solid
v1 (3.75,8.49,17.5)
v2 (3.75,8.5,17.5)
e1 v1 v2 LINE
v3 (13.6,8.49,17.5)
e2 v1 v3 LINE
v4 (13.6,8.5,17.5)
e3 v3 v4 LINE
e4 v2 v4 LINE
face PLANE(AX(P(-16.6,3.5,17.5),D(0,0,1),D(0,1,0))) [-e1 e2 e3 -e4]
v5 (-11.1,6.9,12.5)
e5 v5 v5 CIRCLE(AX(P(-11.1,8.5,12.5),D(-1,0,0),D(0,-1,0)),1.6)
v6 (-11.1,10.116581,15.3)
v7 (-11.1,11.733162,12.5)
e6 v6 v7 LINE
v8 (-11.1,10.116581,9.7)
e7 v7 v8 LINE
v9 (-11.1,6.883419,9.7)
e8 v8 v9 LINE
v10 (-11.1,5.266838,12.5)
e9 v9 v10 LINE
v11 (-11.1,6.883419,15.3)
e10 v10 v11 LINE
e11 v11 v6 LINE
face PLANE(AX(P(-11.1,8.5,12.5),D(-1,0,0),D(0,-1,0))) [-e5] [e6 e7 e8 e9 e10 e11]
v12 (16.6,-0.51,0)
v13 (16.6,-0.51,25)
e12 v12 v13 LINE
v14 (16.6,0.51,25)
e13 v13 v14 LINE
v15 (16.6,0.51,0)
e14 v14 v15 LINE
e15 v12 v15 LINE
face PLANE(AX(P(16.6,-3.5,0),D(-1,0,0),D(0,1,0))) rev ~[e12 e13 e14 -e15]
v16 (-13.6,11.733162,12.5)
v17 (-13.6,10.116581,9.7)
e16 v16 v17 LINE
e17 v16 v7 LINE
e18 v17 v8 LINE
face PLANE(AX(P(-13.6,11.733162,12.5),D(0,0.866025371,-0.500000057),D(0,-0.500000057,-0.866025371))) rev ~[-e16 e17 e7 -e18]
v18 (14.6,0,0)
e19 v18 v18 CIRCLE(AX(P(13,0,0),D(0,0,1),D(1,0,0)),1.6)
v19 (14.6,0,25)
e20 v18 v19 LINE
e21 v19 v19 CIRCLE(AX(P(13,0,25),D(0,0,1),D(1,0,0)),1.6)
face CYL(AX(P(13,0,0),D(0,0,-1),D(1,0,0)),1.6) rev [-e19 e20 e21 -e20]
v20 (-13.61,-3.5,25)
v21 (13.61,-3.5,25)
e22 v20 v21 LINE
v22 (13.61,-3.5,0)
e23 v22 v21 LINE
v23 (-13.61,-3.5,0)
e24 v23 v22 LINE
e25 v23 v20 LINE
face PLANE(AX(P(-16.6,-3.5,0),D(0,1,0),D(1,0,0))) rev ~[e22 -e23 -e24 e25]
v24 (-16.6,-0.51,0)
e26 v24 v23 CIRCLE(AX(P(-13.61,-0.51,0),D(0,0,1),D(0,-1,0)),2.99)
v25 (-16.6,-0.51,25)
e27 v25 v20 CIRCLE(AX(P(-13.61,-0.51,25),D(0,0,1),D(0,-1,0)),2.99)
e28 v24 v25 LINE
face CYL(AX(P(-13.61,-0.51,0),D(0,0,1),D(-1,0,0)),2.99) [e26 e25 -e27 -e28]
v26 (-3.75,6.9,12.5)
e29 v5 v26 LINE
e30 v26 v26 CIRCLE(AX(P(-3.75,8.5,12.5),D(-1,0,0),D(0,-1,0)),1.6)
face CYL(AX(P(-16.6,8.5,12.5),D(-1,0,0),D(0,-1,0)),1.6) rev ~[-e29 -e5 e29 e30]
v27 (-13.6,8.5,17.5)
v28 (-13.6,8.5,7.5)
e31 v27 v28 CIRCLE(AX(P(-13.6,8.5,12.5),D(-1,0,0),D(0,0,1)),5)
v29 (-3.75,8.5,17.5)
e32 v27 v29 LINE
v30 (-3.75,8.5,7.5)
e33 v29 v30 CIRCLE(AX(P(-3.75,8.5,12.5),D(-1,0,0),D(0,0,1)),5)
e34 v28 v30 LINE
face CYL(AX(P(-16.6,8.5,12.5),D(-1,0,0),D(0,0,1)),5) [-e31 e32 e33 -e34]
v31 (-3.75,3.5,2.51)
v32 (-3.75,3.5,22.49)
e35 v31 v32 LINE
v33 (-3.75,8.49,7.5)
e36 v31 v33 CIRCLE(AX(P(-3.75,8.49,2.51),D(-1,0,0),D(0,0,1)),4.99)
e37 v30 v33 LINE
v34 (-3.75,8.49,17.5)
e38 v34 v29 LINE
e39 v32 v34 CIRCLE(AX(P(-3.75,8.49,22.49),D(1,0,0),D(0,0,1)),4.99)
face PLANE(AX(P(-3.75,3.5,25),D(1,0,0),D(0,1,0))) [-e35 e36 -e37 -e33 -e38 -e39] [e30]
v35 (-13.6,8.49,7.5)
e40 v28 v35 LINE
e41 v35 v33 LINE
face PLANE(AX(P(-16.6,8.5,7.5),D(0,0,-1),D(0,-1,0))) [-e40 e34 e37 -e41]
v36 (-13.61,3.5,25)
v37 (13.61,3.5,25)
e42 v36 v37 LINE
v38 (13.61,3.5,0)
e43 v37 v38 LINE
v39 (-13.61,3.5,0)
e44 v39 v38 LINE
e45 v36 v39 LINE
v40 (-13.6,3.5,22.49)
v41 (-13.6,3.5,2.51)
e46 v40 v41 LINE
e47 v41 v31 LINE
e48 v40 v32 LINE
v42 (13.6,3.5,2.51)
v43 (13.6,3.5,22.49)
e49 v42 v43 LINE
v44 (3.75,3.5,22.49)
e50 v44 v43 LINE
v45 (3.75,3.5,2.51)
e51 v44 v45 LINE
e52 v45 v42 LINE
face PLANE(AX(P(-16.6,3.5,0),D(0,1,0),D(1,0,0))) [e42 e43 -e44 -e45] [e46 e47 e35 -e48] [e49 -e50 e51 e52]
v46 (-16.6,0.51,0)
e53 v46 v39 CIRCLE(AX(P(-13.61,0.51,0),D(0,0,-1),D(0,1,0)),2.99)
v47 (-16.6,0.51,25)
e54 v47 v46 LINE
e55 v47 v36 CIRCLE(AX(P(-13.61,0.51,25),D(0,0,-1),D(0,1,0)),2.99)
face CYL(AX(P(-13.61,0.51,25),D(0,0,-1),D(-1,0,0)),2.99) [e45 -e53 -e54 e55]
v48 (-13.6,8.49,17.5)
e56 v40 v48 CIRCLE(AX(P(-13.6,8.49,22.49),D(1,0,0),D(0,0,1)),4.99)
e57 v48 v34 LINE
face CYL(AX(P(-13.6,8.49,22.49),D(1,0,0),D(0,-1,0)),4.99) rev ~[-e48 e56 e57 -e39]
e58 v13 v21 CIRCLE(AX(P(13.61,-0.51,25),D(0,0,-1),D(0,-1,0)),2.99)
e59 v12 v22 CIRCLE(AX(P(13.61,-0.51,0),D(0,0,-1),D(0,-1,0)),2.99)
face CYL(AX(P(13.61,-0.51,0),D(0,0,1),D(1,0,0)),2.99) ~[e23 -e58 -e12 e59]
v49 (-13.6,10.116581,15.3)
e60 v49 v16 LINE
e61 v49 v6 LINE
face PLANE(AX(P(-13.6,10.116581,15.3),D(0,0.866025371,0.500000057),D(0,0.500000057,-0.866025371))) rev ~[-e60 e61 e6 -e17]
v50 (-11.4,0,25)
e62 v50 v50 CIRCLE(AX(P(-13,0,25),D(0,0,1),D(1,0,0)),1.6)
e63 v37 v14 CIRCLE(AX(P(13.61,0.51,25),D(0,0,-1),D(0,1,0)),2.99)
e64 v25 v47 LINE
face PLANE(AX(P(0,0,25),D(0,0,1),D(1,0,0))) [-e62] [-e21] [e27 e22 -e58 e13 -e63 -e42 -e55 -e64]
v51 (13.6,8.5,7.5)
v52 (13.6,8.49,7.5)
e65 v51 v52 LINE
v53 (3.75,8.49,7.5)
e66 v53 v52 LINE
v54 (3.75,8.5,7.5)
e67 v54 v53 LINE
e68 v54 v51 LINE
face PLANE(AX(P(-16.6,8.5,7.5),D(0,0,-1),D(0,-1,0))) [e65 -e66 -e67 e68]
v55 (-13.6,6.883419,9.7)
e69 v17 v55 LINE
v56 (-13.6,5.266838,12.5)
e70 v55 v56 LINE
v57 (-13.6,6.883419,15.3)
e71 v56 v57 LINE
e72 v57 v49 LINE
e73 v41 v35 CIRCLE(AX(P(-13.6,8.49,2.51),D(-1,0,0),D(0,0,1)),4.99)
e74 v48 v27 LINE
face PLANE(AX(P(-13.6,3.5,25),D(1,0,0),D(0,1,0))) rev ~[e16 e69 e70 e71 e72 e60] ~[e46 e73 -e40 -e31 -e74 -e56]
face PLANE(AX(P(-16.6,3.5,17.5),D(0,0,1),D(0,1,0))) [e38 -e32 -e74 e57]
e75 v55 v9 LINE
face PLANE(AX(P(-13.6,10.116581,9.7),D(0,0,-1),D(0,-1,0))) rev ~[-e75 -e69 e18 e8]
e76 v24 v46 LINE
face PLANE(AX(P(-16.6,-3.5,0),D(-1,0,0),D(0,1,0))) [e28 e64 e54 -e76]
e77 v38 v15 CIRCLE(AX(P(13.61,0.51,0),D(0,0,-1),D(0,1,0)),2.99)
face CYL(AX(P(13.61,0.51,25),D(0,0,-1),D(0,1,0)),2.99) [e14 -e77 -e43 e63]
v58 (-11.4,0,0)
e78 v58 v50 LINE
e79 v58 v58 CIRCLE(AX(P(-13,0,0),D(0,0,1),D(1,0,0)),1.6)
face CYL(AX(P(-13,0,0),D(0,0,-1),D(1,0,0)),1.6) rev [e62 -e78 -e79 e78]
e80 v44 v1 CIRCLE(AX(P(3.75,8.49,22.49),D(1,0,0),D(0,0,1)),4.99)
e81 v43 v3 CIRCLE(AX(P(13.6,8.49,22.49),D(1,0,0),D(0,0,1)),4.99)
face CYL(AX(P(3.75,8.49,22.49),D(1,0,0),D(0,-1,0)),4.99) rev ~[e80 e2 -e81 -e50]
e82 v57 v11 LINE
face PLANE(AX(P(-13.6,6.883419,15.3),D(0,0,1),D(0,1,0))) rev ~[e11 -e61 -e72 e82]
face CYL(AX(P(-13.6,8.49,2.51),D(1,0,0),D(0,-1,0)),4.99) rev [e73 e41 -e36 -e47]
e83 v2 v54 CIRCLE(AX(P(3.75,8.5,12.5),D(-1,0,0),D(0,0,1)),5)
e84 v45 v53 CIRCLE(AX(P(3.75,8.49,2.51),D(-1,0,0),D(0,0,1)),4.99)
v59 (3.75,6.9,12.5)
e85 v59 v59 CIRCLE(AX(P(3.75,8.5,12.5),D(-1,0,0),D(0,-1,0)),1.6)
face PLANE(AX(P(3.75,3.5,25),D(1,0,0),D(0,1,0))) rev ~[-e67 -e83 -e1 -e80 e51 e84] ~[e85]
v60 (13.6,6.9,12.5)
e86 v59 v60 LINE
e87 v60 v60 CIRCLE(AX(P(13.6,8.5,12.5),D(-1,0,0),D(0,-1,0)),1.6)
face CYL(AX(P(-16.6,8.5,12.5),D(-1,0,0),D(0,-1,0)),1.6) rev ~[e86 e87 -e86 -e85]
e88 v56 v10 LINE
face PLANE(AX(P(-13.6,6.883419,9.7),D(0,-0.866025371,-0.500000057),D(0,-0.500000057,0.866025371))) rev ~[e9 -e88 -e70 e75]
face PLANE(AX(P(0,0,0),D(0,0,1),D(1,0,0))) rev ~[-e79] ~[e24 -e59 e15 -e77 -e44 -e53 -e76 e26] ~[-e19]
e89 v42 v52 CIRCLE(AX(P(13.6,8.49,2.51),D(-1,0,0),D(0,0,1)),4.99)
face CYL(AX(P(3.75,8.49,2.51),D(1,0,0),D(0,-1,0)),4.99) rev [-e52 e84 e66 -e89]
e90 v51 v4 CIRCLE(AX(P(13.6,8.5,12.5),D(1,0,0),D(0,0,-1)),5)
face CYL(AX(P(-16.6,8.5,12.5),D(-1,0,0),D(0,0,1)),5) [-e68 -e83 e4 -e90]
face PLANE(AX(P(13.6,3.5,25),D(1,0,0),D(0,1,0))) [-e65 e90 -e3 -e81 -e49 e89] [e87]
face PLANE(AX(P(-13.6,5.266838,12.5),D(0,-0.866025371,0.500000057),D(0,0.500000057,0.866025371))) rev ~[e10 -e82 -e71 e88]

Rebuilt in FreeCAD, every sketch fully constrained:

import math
import FreeCAD as App
import Part
import Sketcher
Q = App.Units.Quantity


def edges_at(feature, points):
    """Names of the edges that pass closest to the given points."""
    edges = feature.Shape.Edges
    near = lambda p: min(range(len(edges)), key=lambda i: edges[i].distToShape(Part.Vertex(*p))[0])
    return sorted({f"Edge{near(p) + 1}" for p in points})


def add_polygon(sketch, points):
    """Adds a closed chain of lines whose ends are joined by coincident constraints."""
    first, n = sketch.GeometryCount, len(points)
    for a, b in zip(points, points[1:] + points[:1]):
        sketch.addGeometry(Part.LineSegment(App.Vector(*a, 0), App.Vector(*b, 0)), False)
    for i in range(n):
        sketch.addConstraint(Sketcher.Constraint("Coincident", first + i, 2, first + (i + 1) % n, 1))

doc = App.newDocument("Part")
body = doc.addObject("PartDesign::Body", "Body")

sketch1 = body.newObject("Sketcher::SketchObject", "Sketch")
sketch1.AttachmentSupport = (doc.getObject("XY_Plane"), [""])
sketch1.MapMode = "FlatFace"
add_polygon(sketch1, [(-16.6, 3.5), (-16.6, -3.5), (16.6, -3.5), (16.6, 3.5)])
sketch1.addGeometry(Part.Circle(App.Vector(-13, 0, 0), App.Vector(0, 0, 1), 1.6), False)
sketch1.addGeometry(Part.Circle(App.Vector(13, 0, 0), App.Vector(0, 0, 1), 1.6), False)
sketch1.addConstraint([
    Sketcher.Constraint("Vertical", 0),
    Sketcher.Constraint("Horizontal", 1),
    Sketcher.Constraint("Vertical", 2),
    Sketcher.Constraint("Horizontal", 3),
    Sketcher.Constraint("Equal", 4, 5),
    Sketcher.Constraint("Symmetric", 4, 3, 5, 3, -1, 1),
    Sketcher.Constraint("Symmetric", 0, 2, 2, 2, -1, 1),
    Sketcher.Constraint("PointOnObject", 4, 3, -1),
    Sketcher.Constraint("Diameter", 4, Q("3.2 mm")),
    Sketcher.Constraint("DistanceY", 0, 2, 0, 1, Q("7 mm")),
    Sketcher.Constraint("DistanceX", 1, 1, 1, 2, Q("33.2 mm")),
    Sketcher.Constraint("DistanceX", 4, 3, -1, 1, Q("13 mm")),
])
pad1 = body.newObject("PartDesign::Pad", "Pad")
pad1.Profile = sketch1
pad1.Length = 25

sketch2 = body.newObject("Sketcher::SketchObject", "Sketch001")
sketch2.AttachmentSupport = (doc.getObject("YZ_Plane"), [""])
sketch2.MapMode = "FlatFace"
sketch2.AttachmentOffset = App.Placement(App.Vector(0, 0, -16.6), App.Rotation())
sketch2.addGeometry([
    Part.LineSegment(App.Vector(3.5, 7.5, 0), App.Vector(3.5, 17.5, 0)),
    Part.LineSegment(App.Vector(3.5, 17.5, 0), App.Vector(8.5, 17.5, 0)),
    Part.ArcOfCircle(Part.Circle(App.Vector(8.5, 12.5, 0), App.Vector(0, 0, 1), 5), math.radians(-90), math.radians(90)),
    Part.LineSegment(App.Vector(8.5, 7.5, 0), App.Vector(3.5, 7.5, 0)),
    Part.Circle(App.Vector(8.5, 12.5, 0), App.Vector(0, 0, 1), 1.6),
], False)
sketch2.addConstraint([
    Sketcher.Constraint("Coincident", 0, 2, 1, 1),
    Sketcher.Constraint("Tangent", 1, 2, 2, 2),
    Sketcher.Constraint("Tangent", 2, 1, 3, 1),
    Sketcher.Constraint("Coincident", 3, 2, 0, 1),
    Sketcher.Constraint("Vertical", 0),
    Sketcher.Constraint("Horizontal", 1),
    Sketcher.Constraint("Horizontal", 3),
    Sketcher.Constraint("Coincident", 4, 3, 2, 3),
    Sketcher.Constraint("Radius", 2, Q("5 mm")),
    Sketcher.Constraint("Diameter", 4, Q("3.2 mm")),
    Sketcher.Constraint("DistanceX", 1, 1, 1, 2, Q("5 mm")),
    Sketcher.Constraint("DistanceX", -1, 1, 2, 3, Q("8.5 mm")),
    Sketcher.Constraint("DistanceY", -1, 1, 2, 3, Q("12.5 mm")),
])
pad2 = body.newObject("PartDesign::Pad", "Pad001")
pad2.Profile = sketch2
pad2.Length = 33.2

sketch3 = body.newObject("Sketcher::SketchObject", "Sketch002")
sketch3.AttachmentSupport = (doc.getObject("XY_Plane"), [""])
sketch3.MapMode = "FlatFace"
sketch3.AttachmentOffset = App.Placement(App.Vector(0, 0, 25), App.Rotation())
add_polygon(sketch3, [(-3.75, 13.5), (-3.75, 3.5), (3.75, 3.5), (3.75, 13.5)])
add_polygon(sketch3, [(-16.6, 13.5), (-16.6, 3.5), (-13.6, 3.5), (-13.6, 13.5)])
add_polygon(sketch3, [(13.6, 13.5), (13.6, 3.5), (16.6, 3.5), (16.6, 13.5)])
sketch3.addConstraint([
    Sketcher.Constraint("Vertical", 0),
    Sketcher.Constraint("Horizontal", 1),
    Sketcher.Constraint("Vertical", 2),
    Sketcher.Constraint("Horizontal", 3),
    Sketcher.Constraint("Vertical", 4),
    Sketcher.Constraint("Horizontal", 5),
    Sketcher.Constraint("Vertical", 6),
    Sketcher.Constraint("Horizontal", 7),
    Sketcher.Constraint("Vertical", 8),
    Sketcher.Constraint("Horizontal", 9),
    Sketcher.Constraint("Vertical", 10),
    Sketcher.Constraint("Horizontal", 11),
    Sketcher.Constraint("Symmetric", 5, 2, 8, 2, -2),
    Sketcher.Constraint("Symmetric", 7, 2, 10, 2, -2),
    Sketcher.Constraint("Horizontal", 1, 2, 4, 2),
    Sketcher.Constraint("Horizontal", 3, 2, 6, 2),
    Sketcher.Constraint("DistanceX", 5, 1, 5, 2, Q("3 mm")),
    Sketcher.Constraint("DistanceY", 0, 2, 0, 1, Q("10 mm")),
    Sketcher.Constraint("DistanceX", 1, 1, 1, 2, Q("7.5 mm")),
    Sketcher.Constraint("DistanceY", -1, 1, 0, 2, Q("3.5 mm")),
    Sketcher.Constraint("DistanceX", 4, 2, -1, 1, Q("16.6 mm")),
    Sketcher.Constraint("DistanceX", 0, 2, -1, 1, Q("3.75 mm")),
])
pocket1 = body.newObject("PartDesign::Pocket", "Pocket")
pocket1.Profile = sketch3
pocket1.Type = "ThroughAll"
doc.recompute()

fillet = body.newObject("PartDesign::Fillet", "Fillet")
fillet.Base = (pocket1, edges_at(pocket1, [
    (-16.6, 3.5, 12.5),
    (-16.6, -3.5, 12.5),
    (16.6, -3.5, 12.5),
    (16.6, 3.5, 12.5),
]))
fillet.Radius = 2.99
doc.recompute()

fillet2 = body.newObject("PartDesign::Fillet", "Fillet001")
fillet2.Base = (fillet, edges_at(fillet, [
    (8.675, 3.5, 17.5),
    (-8.675, 3.5, 17.5),
    (8.675, 3.5, 7.5),
    (-8.675, 3.5, 7.5),
]))
fillet2.Radius = 4.99

sketch4 = body.newObject("Sketcher::SketchObject", "Sketch003")
sketch4.AttachmentSupport = (doc.getObject("YZ_Plane"), [""])
sketch4.MapMode = "FlatFace"
sketch4.AttachmentOffset = App.Placement(App.Vector(0, 0, -13.6), App.Rotation())
add_polygon(sketch4, [(5.266838, 12.5), (6.883419, 15.3), (10.116581, 15.3), (11.733162, 12.5), (10.116581, 9.7), (6.883419, 9.7)])
sketch4.addConstraint([
    Sketcher.Constraint("Horizontal", 1),
    Sketcher.Constraint("Horizontal", 4),
    Sketcher.Constraint("Parallel", 0, 3),
    Sketcher.Constraint("Parallel", 2, 5),
    Sketcher.Constraint("Horizontal", 2, 2, 5, 2),
    Sketcher.Constraint("Vertical", 1, 2, 3, 2),
    Sketcher.Constraint("Vertical", 0, 2, 4, 2),
    Sketcher.Constraint("Angle", 0, Q("59.999996 deg")),
    Sketcher.Constraint("DistanceY", -1, 1, 0, 2, Q("15.3 mm")),
    Sketcher.Constraint("DistanceY", -1, 1, 2, 2, Q("12.5 mm")),
    Sketcher.Constraint("DistanceX", 1, 1, 1, 2, Q("3.233162 mm")),
    Sketcher.Constraint("DistanceX", -1, 1, 0, 2, Q("6.883419 mm")),
])
pocket2 = body.newObject("PartDesign::Pocket", "Pocket001")
pocket2.Profile = sketch4
pocket2.Length = 2.5
pocket2.Reversed = True

doc.recompute()
